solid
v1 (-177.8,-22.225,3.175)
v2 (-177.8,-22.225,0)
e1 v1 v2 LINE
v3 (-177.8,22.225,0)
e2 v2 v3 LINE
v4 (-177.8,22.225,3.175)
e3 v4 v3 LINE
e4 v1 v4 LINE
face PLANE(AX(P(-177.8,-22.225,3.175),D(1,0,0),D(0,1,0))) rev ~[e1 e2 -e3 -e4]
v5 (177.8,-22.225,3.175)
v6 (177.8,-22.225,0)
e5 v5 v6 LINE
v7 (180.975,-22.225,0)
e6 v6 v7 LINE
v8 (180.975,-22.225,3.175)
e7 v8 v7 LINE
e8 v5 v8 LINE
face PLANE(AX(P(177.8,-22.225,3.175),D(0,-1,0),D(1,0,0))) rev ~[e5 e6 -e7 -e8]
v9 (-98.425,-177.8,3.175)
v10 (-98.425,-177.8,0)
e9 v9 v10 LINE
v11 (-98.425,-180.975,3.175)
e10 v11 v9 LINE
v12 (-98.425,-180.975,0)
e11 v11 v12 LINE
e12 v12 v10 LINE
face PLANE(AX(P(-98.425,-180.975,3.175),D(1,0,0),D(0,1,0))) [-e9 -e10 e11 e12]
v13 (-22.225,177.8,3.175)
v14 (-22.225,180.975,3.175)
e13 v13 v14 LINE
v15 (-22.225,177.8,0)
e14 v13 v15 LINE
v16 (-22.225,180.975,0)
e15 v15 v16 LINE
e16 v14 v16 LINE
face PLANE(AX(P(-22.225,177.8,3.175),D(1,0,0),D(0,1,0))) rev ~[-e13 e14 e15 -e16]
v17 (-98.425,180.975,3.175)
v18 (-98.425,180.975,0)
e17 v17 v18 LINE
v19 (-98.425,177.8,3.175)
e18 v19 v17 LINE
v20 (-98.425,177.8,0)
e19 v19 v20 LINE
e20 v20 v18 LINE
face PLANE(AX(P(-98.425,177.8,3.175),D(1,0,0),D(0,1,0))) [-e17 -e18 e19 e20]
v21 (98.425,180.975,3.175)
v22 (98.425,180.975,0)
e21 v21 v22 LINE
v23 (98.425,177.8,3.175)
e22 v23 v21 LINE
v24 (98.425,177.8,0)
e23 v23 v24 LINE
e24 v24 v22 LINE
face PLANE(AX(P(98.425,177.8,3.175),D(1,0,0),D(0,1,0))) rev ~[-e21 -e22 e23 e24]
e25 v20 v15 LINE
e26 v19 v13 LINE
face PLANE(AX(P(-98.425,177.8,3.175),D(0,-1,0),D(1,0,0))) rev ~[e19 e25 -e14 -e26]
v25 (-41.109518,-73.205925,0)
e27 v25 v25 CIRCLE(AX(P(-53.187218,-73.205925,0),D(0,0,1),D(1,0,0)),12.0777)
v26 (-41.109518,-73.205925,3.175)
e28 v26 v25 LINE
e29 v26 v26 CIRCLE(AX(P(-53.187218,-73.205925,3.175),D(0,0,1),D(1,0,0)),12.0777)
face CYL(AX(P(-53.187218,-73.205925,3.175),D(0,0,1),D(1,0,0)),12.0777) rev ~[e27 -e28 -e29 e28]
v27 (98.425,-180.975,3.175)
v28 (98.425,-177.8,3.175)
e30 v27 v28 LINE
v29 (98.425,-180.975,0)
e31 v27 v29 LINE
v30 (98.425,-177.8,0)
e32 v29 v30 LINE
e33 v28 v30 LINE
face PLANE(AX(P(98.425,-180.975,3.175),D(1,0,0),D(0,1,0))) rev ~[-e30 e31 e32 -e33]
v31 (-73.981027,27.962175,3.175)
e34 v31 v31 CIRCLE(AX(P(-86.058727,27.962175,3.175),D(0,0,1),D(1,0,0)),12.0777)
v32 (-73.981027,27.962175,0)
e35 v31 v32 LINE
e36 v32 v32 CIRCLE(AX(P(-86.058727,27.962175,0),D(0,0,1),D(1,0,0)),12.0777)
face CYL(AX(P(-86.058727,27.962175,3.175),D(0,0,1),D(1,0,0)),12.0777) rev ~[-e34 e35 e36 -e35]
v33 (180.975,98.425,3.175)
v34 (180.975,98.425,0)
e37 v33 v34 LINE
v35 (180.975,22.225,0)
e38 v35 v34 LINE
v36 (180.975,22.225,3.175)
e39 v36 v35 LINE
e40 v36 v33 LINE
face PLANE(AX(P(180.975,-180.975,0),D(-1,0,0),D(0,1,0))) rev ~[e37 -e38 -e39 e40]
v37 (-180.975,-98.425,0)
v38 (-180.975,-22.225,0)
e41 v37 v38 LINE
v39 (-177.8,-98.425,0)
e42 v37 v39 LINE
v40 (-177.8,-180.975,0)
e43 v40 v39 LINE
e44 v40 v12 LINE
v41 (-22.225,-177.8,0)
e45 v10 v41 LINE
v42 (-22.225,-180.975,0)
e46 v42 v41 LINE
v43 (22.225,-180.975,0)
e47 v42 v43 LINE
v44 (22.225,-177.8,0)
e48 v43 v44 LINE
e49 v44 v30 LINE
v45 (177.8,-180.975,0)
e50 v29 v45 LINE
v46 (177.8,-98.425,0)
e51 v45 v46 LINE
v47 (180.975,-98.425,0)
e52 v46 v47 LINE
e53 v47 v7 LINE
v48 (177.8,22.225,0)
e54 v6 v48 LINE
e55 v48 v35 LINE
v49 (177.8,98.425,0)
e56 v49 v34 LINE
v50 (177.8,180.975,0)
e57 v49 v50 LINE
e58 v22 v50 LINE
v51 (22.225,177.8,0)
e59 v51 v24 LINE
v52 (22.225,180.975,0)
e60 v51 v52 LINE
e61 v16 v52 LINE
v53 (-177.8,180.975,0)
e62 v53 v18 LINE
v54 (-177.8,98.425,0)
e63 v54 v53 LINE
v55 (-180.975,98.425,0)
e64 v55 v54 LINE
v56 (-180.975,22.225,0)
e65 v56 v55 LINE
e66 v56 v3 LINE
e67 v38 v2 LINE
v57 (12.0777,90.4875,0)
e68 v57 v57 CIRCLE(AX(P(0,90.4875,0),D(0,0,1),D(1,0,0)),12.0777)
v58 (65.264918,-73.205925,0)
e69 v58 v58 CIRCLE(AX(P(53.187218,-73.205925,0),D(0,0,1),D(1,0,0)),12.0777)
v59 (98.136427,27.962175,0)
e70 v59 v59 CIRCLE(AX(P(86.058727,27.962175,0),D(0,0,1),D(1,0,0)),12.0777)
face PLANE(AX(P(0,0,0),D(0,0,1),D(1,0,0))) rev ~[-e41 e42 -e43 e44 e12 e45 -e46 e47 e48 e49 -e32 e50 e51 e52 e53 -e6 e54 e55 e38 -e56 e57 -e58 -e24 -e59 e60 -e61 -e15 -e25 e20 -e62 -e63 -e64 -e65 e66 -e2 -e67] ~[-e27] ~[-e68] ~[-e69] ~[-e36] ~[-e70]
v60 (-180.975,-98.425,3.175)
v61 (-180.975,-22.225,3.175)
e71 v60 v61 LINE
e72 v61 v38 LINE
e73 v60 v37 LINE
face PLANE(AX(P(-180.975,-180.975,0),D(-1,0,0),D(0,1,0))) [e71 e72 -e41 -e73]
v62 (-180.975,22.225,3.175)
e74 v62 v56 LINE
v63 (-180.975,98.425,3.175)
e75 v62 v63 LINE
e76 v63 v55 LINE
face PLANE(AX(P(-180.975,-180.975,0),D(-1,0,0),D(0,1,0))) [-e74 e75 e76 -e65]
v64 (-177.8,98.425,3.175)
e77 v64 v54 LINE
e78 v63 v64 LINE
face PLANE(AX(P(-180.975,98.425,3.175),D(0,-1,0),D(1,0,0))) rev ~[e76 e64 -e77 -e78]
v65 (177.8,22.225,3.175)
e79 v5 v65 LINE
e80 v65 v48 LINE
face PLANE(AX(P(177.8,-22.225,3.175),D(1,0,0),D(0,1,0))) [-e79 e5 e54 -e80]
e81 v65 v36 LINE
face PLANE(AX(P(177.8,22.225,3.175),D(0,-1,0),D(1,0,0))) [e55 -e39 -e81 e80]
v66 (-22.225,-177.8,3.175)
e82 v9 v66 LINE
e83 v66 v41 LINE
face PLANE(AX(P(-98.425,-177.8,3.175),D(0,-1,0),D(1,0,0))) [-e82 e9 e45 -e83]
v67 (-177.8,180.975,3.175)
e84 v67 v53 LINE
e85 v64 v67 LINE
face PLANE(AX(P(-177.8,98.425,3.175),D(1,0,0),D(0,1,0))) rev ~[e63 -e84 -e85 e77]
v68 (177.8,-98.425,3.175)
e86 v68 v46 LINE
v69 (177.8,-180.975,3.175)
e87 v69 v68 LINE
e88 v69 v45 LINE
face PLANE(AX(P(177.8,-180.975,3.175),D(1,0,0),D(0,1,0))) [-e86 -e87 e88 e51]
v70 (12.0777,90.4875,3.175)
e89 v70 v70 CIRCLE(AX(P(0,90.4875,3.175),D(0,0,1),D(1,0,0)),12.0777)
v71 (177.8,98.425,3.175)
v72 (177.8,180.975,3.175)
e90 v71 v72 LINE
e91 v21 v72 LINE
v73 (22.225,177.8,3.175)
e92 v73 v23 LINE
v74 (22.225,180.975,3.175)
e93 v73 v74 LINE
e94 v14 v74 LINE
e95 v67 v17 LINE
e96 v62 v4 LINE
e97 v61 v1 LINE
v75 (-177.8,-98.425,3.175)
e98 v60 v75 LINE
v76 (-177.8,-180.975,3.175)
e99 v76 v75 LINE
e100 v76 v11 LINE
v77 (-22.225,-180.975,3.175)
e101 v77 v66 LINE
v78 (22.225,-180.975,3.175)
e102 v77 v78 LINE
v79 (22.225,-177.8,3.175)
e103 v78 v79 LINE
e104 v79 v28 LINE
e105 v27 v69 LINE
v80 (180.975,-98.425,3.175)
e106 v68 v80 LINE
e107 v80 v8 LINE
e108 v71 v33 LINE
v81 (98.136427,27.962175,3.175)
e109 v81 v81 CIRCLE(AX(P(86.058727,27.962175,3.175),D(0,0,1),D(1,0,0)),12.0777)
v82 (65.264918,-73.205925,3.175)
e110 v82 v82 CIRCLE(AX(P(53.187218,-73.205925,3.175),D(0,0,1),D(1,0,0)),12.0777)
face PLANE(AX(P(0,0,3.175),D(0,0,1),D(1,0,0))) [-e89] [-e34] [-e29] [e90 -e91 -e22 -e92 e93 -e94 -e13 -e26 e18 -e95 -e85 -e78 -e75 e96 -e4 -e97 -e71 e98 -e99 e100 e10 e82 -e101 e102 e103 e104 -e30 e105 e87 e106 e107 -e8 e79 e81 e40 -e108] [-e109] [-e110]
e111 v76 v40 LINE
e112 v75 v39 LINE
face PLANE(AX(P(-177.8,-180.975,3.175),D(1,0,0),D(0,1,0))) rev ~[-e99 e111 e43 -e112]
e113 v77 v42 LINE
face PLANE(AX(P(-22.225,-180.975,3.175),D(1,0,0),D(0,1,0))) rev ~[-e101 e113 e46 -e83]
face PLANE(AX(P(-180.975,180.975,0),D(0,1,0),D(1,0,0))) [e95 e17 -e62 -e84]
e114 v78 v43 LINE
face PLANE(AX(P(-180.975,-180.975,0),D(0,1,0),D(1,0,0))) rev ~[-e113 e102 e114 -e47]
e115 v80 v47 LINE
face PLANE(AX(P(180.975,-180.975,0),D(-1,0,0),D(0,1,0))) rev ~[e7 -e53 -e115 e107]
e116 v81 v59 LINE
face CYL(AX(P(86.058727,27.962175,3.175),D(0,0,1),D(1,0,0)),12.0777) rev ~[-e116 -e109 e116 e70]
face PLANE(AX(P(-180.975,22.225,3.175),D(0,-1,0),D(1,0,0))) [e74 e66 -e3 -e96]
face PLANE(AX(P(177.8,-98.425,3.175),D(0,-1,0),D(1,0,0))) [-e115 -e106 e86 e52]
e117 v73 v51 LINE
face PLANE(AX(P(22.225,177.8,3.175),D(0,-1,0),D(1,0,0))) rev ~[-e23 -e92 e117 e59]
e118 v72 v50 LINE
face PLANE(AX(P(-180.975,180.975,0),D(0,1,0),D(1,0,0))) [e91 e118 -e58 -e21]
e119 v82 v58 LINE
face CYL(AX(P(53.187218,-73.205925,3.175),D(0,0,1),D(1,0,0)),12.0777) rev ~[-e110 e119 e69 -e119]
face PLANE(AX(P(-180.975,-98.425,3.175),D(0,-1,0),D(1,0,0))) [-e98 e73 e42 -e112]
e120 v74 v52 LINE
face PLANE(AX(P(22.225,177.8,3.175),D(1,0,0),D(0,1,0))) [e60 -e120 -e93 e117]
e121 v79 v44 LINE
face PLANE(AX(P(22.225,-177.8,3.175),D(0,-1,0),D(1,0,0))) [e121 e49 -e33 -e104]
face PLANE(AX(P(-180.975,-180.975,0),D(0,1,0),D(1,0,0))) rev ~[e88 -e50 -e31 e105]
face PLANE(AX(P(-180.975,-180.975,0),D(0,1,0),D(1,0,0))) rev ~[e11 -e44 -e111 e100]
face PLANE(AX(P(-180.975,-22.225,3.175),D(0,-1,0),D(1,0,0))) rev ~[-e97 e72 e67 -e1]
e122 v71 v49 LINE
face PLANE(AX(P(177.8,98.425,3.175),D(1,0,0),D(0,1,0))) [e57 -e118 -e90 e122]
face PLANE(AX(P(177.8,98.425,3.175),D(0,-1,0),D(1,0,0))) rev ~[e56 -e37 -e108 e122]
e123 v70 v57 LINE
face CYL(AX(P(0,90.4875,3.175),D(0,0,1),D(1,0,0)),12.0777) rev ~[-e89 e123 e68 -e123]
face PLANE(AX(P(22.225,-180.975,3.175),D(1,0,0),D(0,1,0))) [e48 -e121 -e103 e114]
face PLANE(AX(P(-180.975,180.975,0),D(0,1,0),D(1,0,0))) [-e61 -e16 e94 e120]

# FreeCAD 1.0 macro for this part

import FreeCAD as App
import Part
import Sketcher
from FreeCAD import Vector
Q = App.Units.Quantity


def add_polygon(sketch, points):
    """Adds a closed chain of lines whose ends are joined by coincident constraints."""
    first, n = sketch.GeometryCount, len(points)
    for a, b in zip(points, points[1:] + points[:1]):
        sketch.addGeometry(Part.LineSegment(App.Vector(*a, 0), App.Vector(*b, 0)), False)
    for i in range(n):
        sketch.addConstraint(Sketcher.Constraint("Coincident", first + i, 2, first + (i + 1) % n, 1))

doc = App.newDocument("Part")
body = doc.addObject("PartDesign::Body", "Body")

# Sketch on XY plane
sketch1 = body.newObject("Sketcher::SketchObject", "Sketch")
sketch1.AttachmentSupport = (doc.getObject("XY_Plane"), [""])
sketch1.MapMode = "FlatFace"
add_polygon(sketch1, [(-180.975, 180.975), (-180.975, -180.975), (180.975, -180.975), (180.975, 180.975)])  # lines 0-3
sketch1.addConstraint([
    Sketcher.Constraint("Vertical", 0),
    Sketcher.Constraint("Horizontal", 1),
    Sketcher.Constraint("Vertical", 2),
    Sketcher.Constraint("Horizontal", 3),
    Sketcher.Constraint("Symmetric", 0, 2, 2, 2, -1, 1),
    Sketcher.Constraint("Equal", 3, 0),
    Sketcher.Constraint("DistanceX", 1, 1, 1, 2, Q("14.25 in")),
])
pad1 = body.newObject("PartDesign::Pad", "Pad")
pad1.Profile = sketch1
pad1.Length = Q("0.125 in")

# Sketch on XY plane
sketch2 = body.newObject("Sketcher::SketchObject", "Sketch001")
sketch2.AttachmentSupport = (doc.getObject("XY_Plane"), [""])
sketch2.MapMode = "FlatFace"
sketch2.AttachmentOffset = App.Placement(Vector(0, 0, 0.125 * 25.4), App.Rotation())
add_polygon(sketch2, [(-98.425, 180.975), (-98.425, 177.8), (-22.225, 177.8), (-22.225, 180.975)])  # lines 0-3
add_polygon(sketch2, [(22.225, 180.975), (22.225, 177.8), (98.425, 177.8), (98.425, 180.975)])  # lines 4-7
add_polygon(sketch2, [(22.225, -177.8), (22.225, -180.975), (98.425, -180.975), (98.425, -177.8)])  # lines 8-11
add_polygon(sketch2, [(-98.425, -177.8), (-98.425, -180.975), (-22.225, -180.975), (-22.225, -177.8)])  # lines 12-15
sketch2.addConstraint([
    Sketcher.Constraint("Vertical", 0),
    Sketcher.Constraint("Horizontal", 1),
    Sketcher.Constraint("Vertical", 2),
    Sketcher.Constraint("Horizontal", 3),
    Sketcher.Constraint("Vertical", 4),
    Sketcher.Constraint("Horizontal", 5),
    Sketcher.Constraint("Vertical", 6),
    Sketcher.Constraint("Horizontal", 7),
    Sketcher.Constraint("Vertical", 8),
    Sketcher.Constraint("Horizontal", 9),
    Sketcher.Constraint("Vertical", 10),
    Sketcher.Constraint("Horizontal", 11),
    Sketcher.Constraint("Vertical", 12),
    Sketcher.Constraint("Horizontal", 13),
    Sketcher.Constraint("Vertical", 14),
    Sketcher.Constraint("Horizontal", 15),
    Sketcher.Constraint("Symmetric", 2, 2, 8, 2, -1, 1),
    Sketcher.Constraint("Symmetric", 0, 2, 10, 2, -1, 1),
    Sketcher.Constraint("Symmetric", 6, 2, 12, 2, -1, 1),
    Sketcher.Constraint("Symmetric", 4, 2, 14, 2, -1, 1),
    Sketcher.Constraint("Symmetric", 1, 2, 4, 2, -2),
    Sketcher.Constraint("Symmetric", 3, 2, 6, 2, -2),
    Sketcher.Constraint("DistanceX", 1, 1, 1, 2, Q("3 in")),
    Sketcher.Constraint("DistanceY", -1, 1, 0, 2, Q("7 in")),
    Sketcher.Constraint("DistanceY", 0, 2, 0, 1, Q("0.125 in")),
    Sketcher.Constraint("DistanceX", 1, 2, 4, 2, Q("1.75 in")),
])
pocket1 = body.newObject("PartDesign::Pocket", "Pocket")
pocket1.Profile = sketch2
pocket1.Length = Q("0.125 in")

# Sketch on XY plane
sketch3 = body.newObject("Sketcher::SketchObject", "Sketch002")
sketch3.AttachmentSupport = (doc.getObject("XY_Plane"), [""])
sketch3.MapMode = "FlatFace"
sketch3.AttachmentOffset = App.Placement(Vector(0, 0, 0.125 * 25.4), App.Rotation())
sketch3.addGeometry(Part.Circle(Vector(0, 90.4875, 0), Vector(0, 0, 1), 12.0777), False)  # 0
sketch3.addGeometry(Part.Circle(Vector(86.058727, 27.962175, 0), Vector(0, 0, 1), 12.0777), False)  # 1
sketch3.addGeometry(Part.Circle(Vector(53.187218, -73.205925, 0), Vector(0, 0, 1), 12.0777), False)  # 2
sketch3.addGeometry(Part.Circle(Vector(-53.187218, -73.205925, 0), Vector(0, 0, 1), 12.0777), False)  # 3
sketch3.addGeometry(Part.Circle(Vector(-86.058727, 27.962175, 0), Vector(0, 0, 1), 12.0777), False)  # 4
add_polygon(sketch3, [(-180.975, 180.975), (-180.975, 98.425), (-177.8, 98.425), (-177.8, 180.975)])  # lines 5-8
add_polygon(sketch3, [(-180.975, 22.225), (-180.975, -22.225), (-177.8, -22.225), (-177.8, 22.225)])  # lines 9-12
add_polygon(sketch3, [(-180.975, -98.425), (-180.975, -180.975), (-177.8, -180.975), (-177.8, -98.425)])  # lines 13-16
add_polygon(sketch3, [(177.8, -98.425), (177.8, -180.975), (180.975, -180.975), (180.975, -98.425)])  # lines 17-20
add_polygon(sketch3, [(177.8, 22.225), (177.8, -22.225), (180.975, -22.225), (180.975, 22.225)])  # lines 21-24
add_polygon(sketch3, [(177.8, 180.975), (177.8, 98.425), (180.975, 98.425), (180.975, 180.975)])  # lines 25-28
sketch3.addConstraint([
    Sketcher.Constraint("Vertical", 5),
    Sketcher.Constraint("Horizontal", 6),
    Sketcher.Constraint("Vertical", 7),
    Sketcher.Constraint("Horizontal", 8),
    Sketcher.Constraint("Vertical", 9),
    Sketcher.Constraint("Horizontal", 10),
    Sketcher.Constraint("Vertical", 11),
    Sketcher.Constraint("Horizontal", 12),
    Sketcher.Constraint("Vertical", 13),
    Sketcher.Constraint("Horizontal", 14),
    Sketcher.Constraint("Vertical", 15),
    Sketcher.Constraint("Horizontal", 16),
    Sketcher.Constraint("Vertical", 17),
    Sketcher.Constraint("Horizontal", 18),
    Sketcher.Constraint("Vertical", 19),
    Sketcher.Constraint("Horizontal", 20),
    Sketcher.Constraint("Vertical", 21),
    Sketcher.Constraint("Horizontal", 22),
    Sketcher.Constraint("Vertical", 23),
    Sketcher.Constraint("Horizontal", 24),
    Sketcher.Constraint("Vertical", 25),
    Sketcher.Constraint("Horizontal", 26),
    Sketcher.Constraint("Vertical", 27),
    Sketcher.Constraint("Horizontal", 28),
    Sketcher.Constraint("Equal", 0, 1),
    Sketcher.Constraint("Equal", 1, 2),
    Sketcher.Constraint("Equal", 2, 3),
    Sketcher.Constraint("Equal", 3, 4),
    Sketcher.Constraint("Symmetric", 7, 2, 17, 2, -1, 1),
    Sketcher.Constraint("Symmetric", 5, 2, 19, 2, -1, 1),
    Sketcher.Constraint("Symmetric", 11, 2, 21, 2, -1, 1),
    Sketcher.Constraint("Symmetric", 9, 2, 23, 2, -1, 1),
    Sketcher.Constraint("Symmetric", 15, 2, 25, 2, -1, 1),
    Sketcher.Constraint("Symmetric", 13, 2, 27, 2, -1, 1),
    Sketcher.Constraint("Symmetric", 2, 3, 3, 3, -2),
    Sketcher.Constraint("Symmetric", 1, 3, 4, 3, -2),
    Sketcher.Constraint("Symmetric", 14, 2, 17, 2, -2),
    Sketcher.Constraint("Symmetric", 16, 2, 19, 2, -2),
    Sketcher.Constraint("PointOnObject", 0, 3, -2),
    Sketcher.Constraint("Horizontal", 10, 2, 21, 2),
    Sketcher.Constraint("Vertical", 8, 2, 9, 2),
    Sketcher.Constraint("Vertical", 7, 2, 10, 2),
    Sketcher.Constraint("Diameter", 0, Q("0.951 in")),
    Sketcher.Constraint("DistanceX", 6, 2, -1, 1, Q("7 in")),
    Sketcher.Constraint("DistanceY", 9, 2, 8, 2, Q("8 in")),
    Sketcher.Constraint("DistanceY", 11, 2, 6, 2, Q("3 in")),
    Sketcher.Constraint("DistanceY", 5, 2, 5, 1, Q("3.25 in")),
    Sketcher.Constraint("DistanceX", 6, 1, 6, 2, Q("0.125 in")),
    Sketcher.Constraint("DistanceY", -1, 1, 0, 3, Q("3.5625 in")),
    Sketcher.Constraint("DistanceY", 2, 3, 1, 3, 101.168101),
    Sketcher.Constraint("DistanceX", -1, 1, 2, 3, 53.187218),
    Sketcher.Constraint("DistanceX", 2, 3, 1, 3, 32.871509),
    Sketcher.Constraint("DistanceY", -1, 1, 1, 3, 27.962175),
])
pocket2 = body.newObject("PartDesign::Pocket", "Pocket001")
pocket2.Profile = sketch3
pocket2.Length = Q("0.125 in")

doc.recompute()
